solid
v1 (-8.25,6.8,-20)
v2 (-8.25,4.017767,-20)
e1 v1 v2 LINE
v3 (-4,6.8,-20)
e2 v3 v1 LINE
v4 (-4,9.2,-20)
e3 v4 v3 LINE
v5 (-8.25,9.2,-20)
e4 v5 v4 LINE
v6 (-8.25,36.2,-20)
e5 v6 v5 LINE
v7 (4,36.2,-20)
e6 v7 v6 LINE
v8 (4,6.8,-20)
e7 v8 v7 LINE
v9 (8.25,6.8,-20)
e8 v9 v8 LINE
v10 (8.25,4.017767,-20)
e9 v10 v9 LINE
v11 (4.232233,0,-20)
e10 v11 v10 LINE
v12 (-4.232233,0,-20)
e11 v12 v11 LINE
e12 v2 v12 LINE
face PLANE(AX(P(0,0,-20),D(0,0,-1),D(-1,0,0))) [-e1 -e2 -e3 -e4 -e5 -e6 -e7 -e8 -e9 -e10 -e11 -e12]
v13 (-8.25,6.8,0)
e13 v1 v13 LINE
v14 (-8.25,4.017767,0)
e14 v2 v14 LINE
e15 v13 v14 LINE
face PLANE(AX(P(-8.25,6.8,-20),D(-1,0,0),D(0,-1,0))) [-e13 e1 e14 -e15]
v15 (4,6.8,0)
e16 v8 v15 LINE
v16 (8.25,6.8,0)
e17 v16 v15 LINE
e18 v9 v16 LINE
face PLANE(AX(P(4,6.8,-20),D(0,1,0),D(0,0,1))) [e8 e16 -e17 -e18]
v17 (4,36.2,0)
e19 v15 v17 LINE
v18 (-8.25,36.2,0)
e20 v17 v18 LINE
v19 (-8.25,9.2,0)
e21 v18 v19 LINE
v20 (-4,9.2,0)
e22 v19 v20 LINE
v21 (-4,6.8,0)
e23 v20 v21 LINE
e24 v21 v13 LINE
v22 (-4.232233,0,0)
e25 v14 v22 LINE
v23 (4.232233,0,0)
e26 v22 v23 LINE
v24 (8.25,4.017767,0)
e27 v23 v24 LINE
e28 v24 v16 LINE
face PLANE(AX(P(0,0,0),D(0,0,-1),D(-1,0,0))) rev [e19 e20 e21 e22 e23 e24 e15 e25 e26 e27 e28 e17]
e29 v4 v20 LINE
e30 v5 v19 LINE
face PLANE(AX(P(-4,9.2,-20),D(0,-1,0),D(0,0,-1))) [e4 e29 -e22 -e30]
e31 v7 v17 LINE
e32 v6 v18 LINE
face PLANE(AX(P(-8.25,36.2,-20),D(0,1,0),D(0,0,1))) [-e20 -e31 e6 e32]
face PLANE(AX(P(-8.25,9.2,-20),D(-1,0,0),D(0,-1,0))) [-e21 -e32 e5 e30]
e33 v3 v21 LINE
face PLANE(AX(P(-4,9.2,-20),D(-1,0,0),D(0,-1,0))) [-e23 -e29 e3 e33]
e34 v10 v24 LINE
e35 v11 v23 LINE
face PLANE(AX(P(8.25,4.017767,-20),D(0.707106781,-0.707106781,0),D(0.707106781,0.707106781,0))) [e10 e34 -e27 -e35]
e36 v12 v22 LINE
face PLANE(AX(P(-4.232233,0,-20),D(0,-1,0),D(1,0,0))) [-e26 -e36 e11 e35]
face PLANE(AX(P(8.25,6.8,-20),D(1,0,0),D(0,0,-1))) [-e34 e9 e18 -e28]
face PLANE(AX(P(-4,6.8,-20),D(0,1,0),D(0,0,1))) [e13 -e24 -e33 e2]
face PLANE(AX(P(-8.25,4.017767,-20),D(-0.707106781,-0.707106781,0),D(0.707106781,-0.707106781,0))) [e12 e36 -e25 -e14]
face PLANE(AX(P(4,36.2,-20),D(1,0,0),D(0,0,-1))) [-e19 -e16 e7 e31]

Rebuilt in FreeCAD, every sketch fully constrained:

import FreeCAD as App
import Part
import Sketcher

V = App.Vector
Q = App.Units.Quantity

doc = App.newDocument("Part")
body = doc.addObject("PartDesign::Body", "Body")

sketch1 = doc.addObject("Sketcher::SketchObject", "Sketch")
body.addObject(sketch1)
sketch1.AttachmentSupport = (doc.XY_Plane, [""])
sketch1.MapMode = "FlatFace"
sketch1.addGeometry(Part.LineSegment(V(-8.25, 9.2, 0), V(-4, 9.2, 0)), False)
sketch1.addGeometry(Part.LineSegment(V(-4, 9.2, 0), V(-4, 6.8, 0)), False)
sketch1.addGeometry(Part.LineSegment(V(-4, 6.8, 0), V(-8.25, 6.8, 0)), False)
sketch1.addGeometry(Part.LineSegment(V(-8.25, 6.8, 0), V(-8.25, 4.017767, 0)), False)
sketch1.addGeometry(Part.LineSegment(V(-8.25, 4.017767, 0), V(-4.232233, 0, 0)), False)
sketch1.addGeometry(Part.LineSegment(V(-4.232233, 0, 0), V(4.232233, 0, 0)), False)
sketch1.addGeometry(Part.LineSegment(V(4.232233, 0, 0), V(8.25, 4.017767, 0)), False)
sketch1.addGeometry(Part.LineSegment(V(8.25, 4.017767, 0), V(8.25, 6.8, 0)), False)
sketch1.addGeometry(Part.LineSegment(V(8.25, 6.8, 0), V(4, 6.8, 0)), False)
sketch1.addGeometry(Part.LineSegment(V(4, 6.8, 0), V(4, 36.2, 0)), False)
sketch1.addGeometry(Part.LineSegment(V(4, 36.2, 0), V(-8.25, 36.2, 0)), False)
sketch1.addGeometry(Part.LineSegment(V(-8.25, 36.2, 0), V(-8.25, 9.2, 0)), False)
sketch1.addConstraint(Sketcher.Constraint("Coincident", 0, 2, 1, 1))
sketch1.addConstraint(Sketcher.Constraint("Coincident", 1, 2, 2, 1))
sketch1.addConstraint(Sketcher.Constraint("Coincident", 2, 2, 3, 1))
sketch1.addConstraint(Sketcher.Constraint("Coincident", 3, 2, 4, 1))
sketch1.addConstraint(Sketcher.Constraint("Coincident", 4, 2, 5, 1))
sketch1.addConstraint(Sketcher.Constraint("Coincident", 5, 2, 6, 1))
sketch1.addConstraint(Sketcher.Constraint("Coincident", 6, 2, 7, 1))
sketch1.addConstraint(Sketcher.Constraint("Coincident", 7, 2, 8, 1))
sketch1.addConstraint(Sketcher.Constraint("Coincident", 8, 2, 9, 1))
sketch1.addConstraint(Sketcher.Constraint("Coincident", 9, 2, 10, 1))
sketch1.addConstraint(Sketcher.Constraint("Coincident", 10, 2, 11, 1))
sketch1.addConstraint(Sketcher.Constraint("Coincident", 11, 2, 0, 1))
sketch1.addConstraint(Sketcher.Constraint("Horizontal", 0))
sketch1.addConstraint(Sketcher.Constraint("Vertical", 1))
sketch1.addConstraint(Sketcher.Constraint("Horizontal", 2))
sketch1.addConstraint(Sketcher.Constraint("Vertical", 3))
sketch1.addConstraint(Sketcher.Constraint("Horizontal", 5))
sketch1.addConstraint(Sketcher.Constraint("Vertical", 7))
sketch1.addConstraint(Sketcher.Constraint("Horizontal", 8))
sketch1.addConstraint(Sketcher.Constraint("Vertical", 9))
sketch1.addConstraint(Sketcher.Constraint("Horizontal", 10))
sketch1.addConstraint(Sketcher.Constraint("Vertical", 11))
sketch1.addConstraint(Sketcher.Constraint("Symmetric", 4, 2, 5, 2, -1, 1))
sketch1.addConstraint(Sketcher.Constraint("Symmetric", 3, 2, 6, 2, -2))
sketch1.addConstraint(Sketcher.Constraint("Symmetric", 1, 2, 8, 2, -2))
sketch1.addConstraint(Sketcher.Constraint("Perpendicular", 4, 6))
sketch1.addConstraint(Sketcher.Constraint("Vertical", 3, 2, 10, 2))
sketch1.addConstraint(Sketcher.Constraint("DistanceY", 11, 2, 11, 1, Q("27 mm")))
sketch1.addConstraint(Sketcher.Constraint("DistanceY", 1, 2, 1, 1, Q("2.4 mm")))
sketch1.addConstraint(Sketcher.Constraint("DistanceX", 0, 2, -1, 1, Q("4 mm")))
sketch1.addConstraint(Sketcher.Constraint("DistanceX", 0, 1, 0, 2, Q("4.25 mm")))
sketch1.addConstraint(Sketcher.Constraint("DistanceY", -1, 1, 0, 2, Q("9.2 mm")))
sketch1.addConstraint(Sketcher.Constraint("Distance", 4, Q("5.681981 mm")))
pad1 = doc.addObject("PartDesign::Pad", "Pad")
body.addObject(pad1)
pad1.Profile = sketch1
pad1.Length = 20
pad1.Reversed = True

doc.recompute()
